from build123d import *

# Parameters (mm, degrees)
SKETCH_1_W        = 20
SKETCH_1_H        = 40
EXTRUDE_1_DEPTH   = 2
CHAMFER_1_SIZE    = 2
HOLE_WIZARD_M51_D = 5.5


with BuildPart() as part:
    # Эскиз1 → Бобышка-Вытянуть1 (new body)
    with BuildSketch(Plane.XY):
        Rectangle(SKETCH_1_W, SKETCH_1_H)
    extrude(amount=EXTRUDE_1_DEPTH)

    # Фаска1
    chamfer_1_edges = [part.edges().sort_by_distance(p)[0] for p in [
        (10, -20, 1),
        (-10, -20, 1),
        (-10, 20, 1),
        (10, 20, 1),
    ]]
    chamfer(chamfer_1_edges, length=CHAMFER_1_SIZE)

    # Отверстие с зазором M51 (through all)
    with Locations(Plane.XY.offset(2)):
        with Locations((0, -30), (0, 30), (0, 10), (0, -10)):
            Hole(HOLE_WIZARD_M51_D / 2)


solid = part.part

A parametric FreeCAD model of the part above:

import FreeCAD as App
import Part
import Sketcher
from FreeCAD import Vector


def edges_at(feature, points):
    """Names of the edges that pass closest to the given points."""
    edges = feature.Shape.Edges
    near = lambda p: min(range(len(edges)), key=lambda i: edges[i].distToShape(Part.Vertex(*p))[0])
    return sorted({f"Edge{near(p) + 1}" for p in points})

doc = App.newDocument("Part")
params = doc.addObject("Spreadsheet::Sheet", "Params")
for row, (alias, value) in enumerate([
    ("sketch1_width", "20 mm"),
    ("sketch1_height", "40 mm"),
    ("pad1_length", "2 mm"),
    ("chamfer_size", "2 mm"),
    ("sketch2_diameter", "5.5 mm"),
    ("hole_diameter", "5.5 mm"),
], start=1):
    params.set(f"A{row}", alias)
    params.set(f"B{row}", "=" + value)
    params.setAlias(f"B{row}", alias)

body = doc.addObject("PartDesign::Body", "Body")

sketch1 = doc.addObject("Sketcher::SketchObject", "Sketch")
body.addObject(sketch1)
sketch1.AttachmentSupport = (doc.XY_Plane, [""])
sketch1.MapMode = "FlatFace"
sketch1.addGeometry([
    Part.LineSegment(Vector(-10, 20, 0), Vector(-10, -20, 0)),
    Part.LineSegment(Vector(-10, -20, 0), Vector(10, -20, 0)),
    Part.LineSegment(Vector(10, -20, 0), Vector(10, 20, 0)),
    Part.LineSegment(Vector(10, 20, 0), Vector(-10, 20, 0)),
], False)
sketch1.addConstraint([
    Sketcher.Constraint("Coincident", 0, 2, 1, 1),
    Sketcher.Constraint("Coincident", 1, 2, 2, 1),
    Sketcher.Constraint("Coincident", 2, 2, 3, 1),
    Sketcher.Constraint("Coincident", 3, 2, 0, 1),
    Sketcher.Constraint("Vertical", 0),
    Sketcher.Constraint("Horizontal", 1),
    Sketcher.Constraint("Vertical", 2),
    Sketcher.Constraint("Horizontal", 3),
    Sketcher.Constraint("Symmetric", 0, 2, 2, 2, -1, 1),
    Sketcher.Constraint("DistanceX", 1, 1, 1, 2, 20.0),
    Sketcher.Constraint("DistanceY", 0, 2, 0, 1, 40.0),
])
sketch1.setExpression("Constraints[9]", "Params.sketch1_width")
sketch1.setExpression("Constraints[10]", "Params.sketch1_height")
pad1 = doc.addObject("PartDesign::Pad", "Pad")
body.addObject(pad1)
pad1.Profile = sketch1
pad1.setExpression("Length", "Params.pad1_length")
doc.recompute()

chamfer = doc.addObject("PartDesign::Chamfer", "Chamfer")
body.addObject(chamfer)
chamfer.Base = (pad1, edges_at(pad1, [
    (10, -20, 1),
    (-10, -20, 1),
    (-10, 20, 1),
    (10, 20, 1),
]))
chamfer.setExpression("Size", "Params.chamfer_size")

sketch2 = doc.addObject("Sketcher::SketchObject", "Sketch001")
body.addObject(sketch2)
sketch2.AttachmentSupport = (doc.XY_Plane, [""])
sketch2.MapMode = "FlatFace"
sketch2.AttachmentOffset = App.Placement(Vector(0, 0, 2), App.Rotation())
sketch2.addGeometry([
    Part.Circle(Vector(0, -30, 0), Vector(0, 0, 1), 2.8),
    Part.Circle(Vector(0, 30, 0), Vector(0, 0, 1), 2.8),
    Part.Circle(Vector(0, 10, 0), Vector(0, 0, 1), 2.8),
    Part.Circle(Vector(0, -10, 0), Vector(0, 0, 1), 2.8),
], False)
sketch2.addConstraint([
    Sketcher.Constraint("Equal", 0, 1),
    Sketcher.Constraint("Equal", 1, 2),
    Sketcher.Constraint("Equal", 2, 3),
    Sketcher.Constraint("Symmetric", 0, 3, 1, 3, -1, 1),
    Sketcher.Constraint("Symmetric", 2, 3, 3, 3, -1, 1),
    Sketcher.Constraint("PointOnObject", 0, 3, -2),
    Sketcher.Constraint("PointOnObject", 2, 3, -2),
    Sketcher.Constraint("Diameter", 0, 5.5),
    Sketcher.Constraint("DistanceY", 0, 3, -1, 1, 30.0),
    Sketcher.Constraint("DistanceY", -1, 1, 2, 3, 10.0),
])
sketch2.setExpression("Constraints[7]", "Params.sketch2_diameter")
doc.recompute()
hole = doc.addObject("PartDesign::Hole", "Hole")
body.addObject(hole)
hole.Profile = sketch2
hole.ThreadType = "None"
hole.setExpression("Diameter", "Params.hole_diameter")
hole.DepthType = "ThroughAll"

doc.recompute()
